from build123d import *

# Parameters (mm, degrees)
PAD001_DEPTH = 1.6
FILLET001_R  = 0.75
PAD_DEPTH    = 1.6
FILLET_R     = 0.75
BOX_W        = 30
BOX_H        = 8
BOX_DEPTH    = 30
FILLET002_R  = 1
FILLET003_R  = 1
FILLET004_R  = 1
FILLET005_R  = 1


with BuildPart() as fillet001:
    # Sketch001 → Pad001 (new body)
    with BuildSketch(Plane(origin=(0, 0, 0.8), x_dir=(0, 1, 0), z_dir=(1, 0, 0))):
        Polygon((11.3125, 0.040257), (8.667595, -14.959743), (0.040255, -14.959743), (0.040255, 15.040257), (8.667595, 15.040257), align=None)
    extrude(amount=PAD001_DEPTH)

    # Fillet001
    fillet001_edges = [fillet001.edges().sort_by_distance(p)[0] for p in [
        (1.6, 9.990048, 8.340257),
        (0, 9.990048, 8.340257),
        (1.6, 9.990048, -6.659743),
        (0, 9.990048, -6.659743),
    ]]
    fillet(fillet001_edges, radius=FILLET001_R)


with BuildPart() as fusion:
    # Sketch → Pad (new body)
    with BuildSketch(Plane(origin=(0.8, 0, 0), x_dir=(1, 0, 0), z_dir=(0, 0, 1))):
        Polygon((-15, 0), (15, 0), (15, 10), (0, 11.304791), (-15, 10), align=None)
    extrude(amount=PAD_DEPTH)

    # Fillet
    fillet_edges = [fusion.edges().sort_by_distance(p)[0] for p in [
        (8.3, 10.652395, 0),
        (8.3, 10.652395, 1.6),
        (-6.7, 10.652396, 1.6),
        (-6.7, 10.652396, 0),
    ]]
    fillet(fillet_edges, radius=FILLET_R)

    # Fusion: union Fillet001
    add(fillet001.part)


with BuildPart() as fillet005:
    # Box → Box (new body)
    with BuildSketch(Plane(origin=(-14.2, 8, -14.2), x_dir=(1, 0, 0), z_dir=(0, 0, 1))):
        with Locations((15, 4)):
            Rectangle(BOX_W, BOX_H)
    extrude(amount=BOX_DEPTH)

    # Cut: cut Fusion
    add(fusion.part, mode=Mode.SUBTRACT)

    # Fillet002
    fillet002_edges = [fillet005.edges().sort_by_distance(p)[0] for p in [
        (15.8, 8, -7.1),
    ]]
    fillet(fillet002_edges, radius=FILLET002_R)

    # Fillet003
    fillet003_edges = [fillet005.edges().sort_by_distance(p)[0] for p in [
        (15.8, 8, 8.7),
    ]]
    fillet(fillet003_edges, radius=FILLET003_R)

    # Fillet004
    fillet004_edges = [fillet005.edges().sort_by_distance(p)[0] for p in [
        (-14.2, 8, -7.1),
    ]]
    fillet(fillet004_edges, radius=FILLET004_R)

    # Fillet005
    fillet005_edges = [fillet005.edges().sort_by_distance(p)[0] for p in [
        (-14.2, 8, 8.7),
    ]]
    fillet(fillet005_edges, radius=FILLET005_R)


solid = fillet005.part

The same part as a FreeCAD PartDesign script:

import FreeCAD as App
import Part
import Sketcher
Q = App.Units.Quantity


def edges_at(feature, points):
    """Names of the edges that pass closest to the given points."""
    edges = feature.Shape.Edges
    near = lambda p: min(range(len(edges)), key=lambda i: edges[i].distToShape(Part.Vertex(*p))[0])
    return sorted({f"Edge{near(p) + 1}" for p in points})

doc = App.newDocument("Part")
body = doc.addObject("PartDesign::Body", "Body")

sketch1 = doc.addObject("Sketcher::SketchObject", "Sketch")
body.addObject(sketch1)
sketch1.AttachmentSupport = (doc.YZ_Plane, [""])
sketch1.MapMode = "FlatFace"
sketch1.addGeometry([
    Part.LineSegment(App.Vector(9, -14, 0), App.Vector(11, 1, 0)),
    Part.LineSegment(App.Vector(11, 1, 0), App.Vector(9, 16, 0)),
    Part.LineSegment(App.Vector(9, 16, 0), App.Vector(0, 16, 0)),
    Part.LineSegment(App.Vector(0, 16, 0), App.Vector(0, -14, 0)),
    Part.LineSegment(App.Vector(0, -14, 0), App.Vector(9, -14, 0)),
], False)
sketch1.addConstraint([
    Sketcher.Constraint("Coincident", 0, 2, 1, 1),
    Sketcher.Constraint("Coincident", 1, 2, 2, 1),
    Sketcher.Constraint("Coincident", 2, 2, 3, 1),
    Sketcher.Constraint("Coincident", 3, 2, 4, 1),
    Sketcher.Constraint("Coincident", 4, 2, 0, 1),
    Sketcher.Constraint("Horizontal", 2),
    Sketcher.Constraint("Vertical", 3),
    Sketcher.Constraint("Horizontal", 4),
    Sketcher.Constraint("Vertical", 1, 2, 4, 2),
    Sketcher.Constraint("Equal", 0, 1),
    Sketcher.Constraint("DistanceY", 3, 2, 3, 1, Q("30 mm")),
    Sketcher.Constraint("Angle", 0, Q("79.999999 deg")),
    Sketcher.Constraint("DistanceX", 2, 2, 2, 1, Q("8.62734 mm")),
    Sketcher.Constraint("DistanceX", -1, 1, 0, 2, Q("11.3125 mm")),
    Sketcher.Constraint("DistanceY", -1, 1, 0, 2, Q("0.840257 mm")),
])
pad1 = doc.addObject("PartDesign::Pad", "Pad")
body.addObject(pad1)
pad1.Profile = sketch1
pad1.Length = 1.6
doc.recompute()

fillet = doc.addObject("PartDesign::Fillet", "Fillet")
body.addObject(fillet)
fillet.Base = (pad1, edges_at(pad1, [
    (1.6, 9.99, 8.34),
    (0, 9.99, 8.34),
    (1.6, 9.99, -6.66),
    (0, 9.99, -6.66),
]))
fillet.Radius = 0.75
body2 = doc.addObject("PartDesign::Body", "Body001")

sketch2 = doc.addObject("Sketcher::SketchObject", "Sketch001")
body2.addObject(sketch2)
sketch2.AttachmentSupport = (doc.getObject("XY_Plane001"), [""])
sketch2.MapMode = "FlatFace"
sketch2.addGeometry([
    Part.LineSegment(App.Vector(-14, 0, 0), App.Vector(16, 0, 0)),
    Part.LineSegment(App.Vector(16, 0, 0), App.Vector(16, 10, 0)),
    Part.LineSegment(App.Vector(16, 10, 0), App.Vector(1, 11, 0)),
    Part.LineSegment(App.Vector(1, 11, 0), App.Vector(-14, 10, 0)),
    Part.LineSegment(App.Vector(-14, 10, 0), App.Vector(-14, 0, 0)),
], False)
sketch2.addConstraint([
    Sketcher.Constraint("Coincident", 0, 2, 1, 1),
    Sketcher.Constraint("Coincident", 1, 2, 2, 1),
    Sketcher.Constraint("Coincident", 2, 2, 3, 1),
    Sketcher.Constraint("Coincident", 3, 2, 4, 1),
    Sketcher.Constraint("Coincident", 4, 2, 0, 1),
    Sketcher.Constraint("Horizontal", 0),
    Sketcher.Constraint("Vertical", 1),
    Sketcher.Constraint("Vertical", 4),
    Sketcher.Constraint("PointOnObject", 0, 2, -1),
    Sketcher.Constraint("Horizontal", 1, 2, 3, 2),
    Sketcher.Constraint("Equal", 2, 3),
    Sketcher.Constraint("DistanceX", 0, 1, 0, 2, Q("30 mm")),
    Sketcher.Constraint("DistanceY", 1, 1, 1, 2, Q("10 mm")),
    Sketcher.Constraint("DistanceX", -1, 1, 0, 2, Q("15.8 mm")),
    Sketcher.Constraint("DistanceY", -1, 1, 2, 2, Q("11.304791 mm")),
])
pad2 = doc.addObject("PartDesign::Pad", "Pad001")
body2.addObject(pad2)
pad2.Profile = sketch2
pad2.Length = 1.6
doc.recompute()

fillet2 = doc.addObject("PartDesign::Fillet", "Fillet001")
body2.addObject(fillet2)
fillet2.Base = (pad2, edges_at(pad2, [
    (8.3, 10.652, 0),
    (8.3, 10.652, 1.6),
    (-6.7, 10.652, 1.6),
    (-6.7, 10.652, 0),
]))
fillet2.Radius = 0.75
doc.recompute()

boolean = doc.addObject("PartDesign::Boolean", "Boolean")
body2.addObject(boolean)
boolean.Type = "Fuse"
boolean.addObjects([body])
body3 = doc.addObject("PartDesign::Body", "Body002")

sketch3 = doc.addObject("Sketcher::SketchObject", "Sketch002")
body3.addObject(sketch3)
sketch3.AttachmentSupport = (doc.getObject("XY_Plane002"), [""])
sketch3.MapMode = "FlatFace"
sketch3.AttachmentOffset = App.Placement(App.Vector(0, 0, -14.2), App.Rotation())
sketch3.addGeometry([
    Part.LineSegment(App.Vector(-14, 16, 0), App.Vector(-14, 8, 0)),
    Part.LineSegment(App.Vector(-14, 8, 0), App.Vector(16, 8, 0)),
    Part.LineSegment(App.Vector(16, 8, 0), App.Vector(16, 16, 0)),
    Part.LineSegment(App.Vector(16, 16, 0), App.Vector(-14, 16, 0)),
], False)
sketch3.addConstraint([
    Sketcher.Constraint("Coincident", 0, 2, 1, 1),
    Sketcher.Constraint("Coincident", 1, 2, 2, 1),
    Sketcher.Constraint("Coincident", 2, 2, 3, 1),
    Sketcher.Constraint("Coincident", 3, 2, 0, 1),
    Sketcher.Constraint("Vertical", 0),
    Sketcher.Constraint("Horizontal", 1),
    Sketcher.Constraint("Vertical", 2),
    Sketcher.Constraint("Horizontal", 3),
    Sketcher.Constraint("DistanceX", 1, 1, 1, 2, Q("30 mm")),
    Sketcher.Constraint("DistanceY", 0, 2, 0, 1, Q("8 mm")),
    Sketcher.Constraint("DistanceY", -1, 1, 0, 2, Q("8 mm")),
    Sketcher.Constraint("DistanceX", 0, 2, -1, 1, Q("14.2 mm")),
])
pad3 = doc.addObject("PartDesign::Pad", "Pad002")
body3.addObject(pad3)
pad3.Profile = sketch3
pad3.Length = 30
doc.recompute()

boolean2 = doc.addObject("PartDesign::Boolean", "Boolean001")
body3.addObject(boolean2)
boolean2.Type = "Cut"
boolean2.addObjects([body2])
doc.recompute()

fillet3 = doc.addObject("PartDesign::Fillet", "Fillet002")
body3.addObject(fillet3)
fillet3.Base = (boolean2, edges_at(boolean2, [(15.8, 8, -7.1)]))
fillet3.Radius = 1
doc.recompute()

fillet4 = doc.addObject("PartDesign::Fillet", "Fillet003")
body3.addObject(fillet4)
fillet4.Base = (fillet3, edges_at(fillet3, [(15.8, 8, 8.7)]))
fillet4.Radius = 1
doc.recompute()

fillet5 = doc.addObject("PartDesign::Fillet", "Fillet004")
body3.addObject(fillet5)
fillet5.Base = (fillet4, edges_at(fillet4, [(-14.2, 8, -7.1)]))
fillet5.Radius = 1
doc.recompute()

fillet6 = doc.addObject("PartDesign::Fillet", "Fillet005")
body3.addObject(fillet6)
fillet6.Base = (fillet5, edges_at(fillet5, [(-14.2, 8, 8.7)]))
fillet6.Radius = 1

doc.recompute()
